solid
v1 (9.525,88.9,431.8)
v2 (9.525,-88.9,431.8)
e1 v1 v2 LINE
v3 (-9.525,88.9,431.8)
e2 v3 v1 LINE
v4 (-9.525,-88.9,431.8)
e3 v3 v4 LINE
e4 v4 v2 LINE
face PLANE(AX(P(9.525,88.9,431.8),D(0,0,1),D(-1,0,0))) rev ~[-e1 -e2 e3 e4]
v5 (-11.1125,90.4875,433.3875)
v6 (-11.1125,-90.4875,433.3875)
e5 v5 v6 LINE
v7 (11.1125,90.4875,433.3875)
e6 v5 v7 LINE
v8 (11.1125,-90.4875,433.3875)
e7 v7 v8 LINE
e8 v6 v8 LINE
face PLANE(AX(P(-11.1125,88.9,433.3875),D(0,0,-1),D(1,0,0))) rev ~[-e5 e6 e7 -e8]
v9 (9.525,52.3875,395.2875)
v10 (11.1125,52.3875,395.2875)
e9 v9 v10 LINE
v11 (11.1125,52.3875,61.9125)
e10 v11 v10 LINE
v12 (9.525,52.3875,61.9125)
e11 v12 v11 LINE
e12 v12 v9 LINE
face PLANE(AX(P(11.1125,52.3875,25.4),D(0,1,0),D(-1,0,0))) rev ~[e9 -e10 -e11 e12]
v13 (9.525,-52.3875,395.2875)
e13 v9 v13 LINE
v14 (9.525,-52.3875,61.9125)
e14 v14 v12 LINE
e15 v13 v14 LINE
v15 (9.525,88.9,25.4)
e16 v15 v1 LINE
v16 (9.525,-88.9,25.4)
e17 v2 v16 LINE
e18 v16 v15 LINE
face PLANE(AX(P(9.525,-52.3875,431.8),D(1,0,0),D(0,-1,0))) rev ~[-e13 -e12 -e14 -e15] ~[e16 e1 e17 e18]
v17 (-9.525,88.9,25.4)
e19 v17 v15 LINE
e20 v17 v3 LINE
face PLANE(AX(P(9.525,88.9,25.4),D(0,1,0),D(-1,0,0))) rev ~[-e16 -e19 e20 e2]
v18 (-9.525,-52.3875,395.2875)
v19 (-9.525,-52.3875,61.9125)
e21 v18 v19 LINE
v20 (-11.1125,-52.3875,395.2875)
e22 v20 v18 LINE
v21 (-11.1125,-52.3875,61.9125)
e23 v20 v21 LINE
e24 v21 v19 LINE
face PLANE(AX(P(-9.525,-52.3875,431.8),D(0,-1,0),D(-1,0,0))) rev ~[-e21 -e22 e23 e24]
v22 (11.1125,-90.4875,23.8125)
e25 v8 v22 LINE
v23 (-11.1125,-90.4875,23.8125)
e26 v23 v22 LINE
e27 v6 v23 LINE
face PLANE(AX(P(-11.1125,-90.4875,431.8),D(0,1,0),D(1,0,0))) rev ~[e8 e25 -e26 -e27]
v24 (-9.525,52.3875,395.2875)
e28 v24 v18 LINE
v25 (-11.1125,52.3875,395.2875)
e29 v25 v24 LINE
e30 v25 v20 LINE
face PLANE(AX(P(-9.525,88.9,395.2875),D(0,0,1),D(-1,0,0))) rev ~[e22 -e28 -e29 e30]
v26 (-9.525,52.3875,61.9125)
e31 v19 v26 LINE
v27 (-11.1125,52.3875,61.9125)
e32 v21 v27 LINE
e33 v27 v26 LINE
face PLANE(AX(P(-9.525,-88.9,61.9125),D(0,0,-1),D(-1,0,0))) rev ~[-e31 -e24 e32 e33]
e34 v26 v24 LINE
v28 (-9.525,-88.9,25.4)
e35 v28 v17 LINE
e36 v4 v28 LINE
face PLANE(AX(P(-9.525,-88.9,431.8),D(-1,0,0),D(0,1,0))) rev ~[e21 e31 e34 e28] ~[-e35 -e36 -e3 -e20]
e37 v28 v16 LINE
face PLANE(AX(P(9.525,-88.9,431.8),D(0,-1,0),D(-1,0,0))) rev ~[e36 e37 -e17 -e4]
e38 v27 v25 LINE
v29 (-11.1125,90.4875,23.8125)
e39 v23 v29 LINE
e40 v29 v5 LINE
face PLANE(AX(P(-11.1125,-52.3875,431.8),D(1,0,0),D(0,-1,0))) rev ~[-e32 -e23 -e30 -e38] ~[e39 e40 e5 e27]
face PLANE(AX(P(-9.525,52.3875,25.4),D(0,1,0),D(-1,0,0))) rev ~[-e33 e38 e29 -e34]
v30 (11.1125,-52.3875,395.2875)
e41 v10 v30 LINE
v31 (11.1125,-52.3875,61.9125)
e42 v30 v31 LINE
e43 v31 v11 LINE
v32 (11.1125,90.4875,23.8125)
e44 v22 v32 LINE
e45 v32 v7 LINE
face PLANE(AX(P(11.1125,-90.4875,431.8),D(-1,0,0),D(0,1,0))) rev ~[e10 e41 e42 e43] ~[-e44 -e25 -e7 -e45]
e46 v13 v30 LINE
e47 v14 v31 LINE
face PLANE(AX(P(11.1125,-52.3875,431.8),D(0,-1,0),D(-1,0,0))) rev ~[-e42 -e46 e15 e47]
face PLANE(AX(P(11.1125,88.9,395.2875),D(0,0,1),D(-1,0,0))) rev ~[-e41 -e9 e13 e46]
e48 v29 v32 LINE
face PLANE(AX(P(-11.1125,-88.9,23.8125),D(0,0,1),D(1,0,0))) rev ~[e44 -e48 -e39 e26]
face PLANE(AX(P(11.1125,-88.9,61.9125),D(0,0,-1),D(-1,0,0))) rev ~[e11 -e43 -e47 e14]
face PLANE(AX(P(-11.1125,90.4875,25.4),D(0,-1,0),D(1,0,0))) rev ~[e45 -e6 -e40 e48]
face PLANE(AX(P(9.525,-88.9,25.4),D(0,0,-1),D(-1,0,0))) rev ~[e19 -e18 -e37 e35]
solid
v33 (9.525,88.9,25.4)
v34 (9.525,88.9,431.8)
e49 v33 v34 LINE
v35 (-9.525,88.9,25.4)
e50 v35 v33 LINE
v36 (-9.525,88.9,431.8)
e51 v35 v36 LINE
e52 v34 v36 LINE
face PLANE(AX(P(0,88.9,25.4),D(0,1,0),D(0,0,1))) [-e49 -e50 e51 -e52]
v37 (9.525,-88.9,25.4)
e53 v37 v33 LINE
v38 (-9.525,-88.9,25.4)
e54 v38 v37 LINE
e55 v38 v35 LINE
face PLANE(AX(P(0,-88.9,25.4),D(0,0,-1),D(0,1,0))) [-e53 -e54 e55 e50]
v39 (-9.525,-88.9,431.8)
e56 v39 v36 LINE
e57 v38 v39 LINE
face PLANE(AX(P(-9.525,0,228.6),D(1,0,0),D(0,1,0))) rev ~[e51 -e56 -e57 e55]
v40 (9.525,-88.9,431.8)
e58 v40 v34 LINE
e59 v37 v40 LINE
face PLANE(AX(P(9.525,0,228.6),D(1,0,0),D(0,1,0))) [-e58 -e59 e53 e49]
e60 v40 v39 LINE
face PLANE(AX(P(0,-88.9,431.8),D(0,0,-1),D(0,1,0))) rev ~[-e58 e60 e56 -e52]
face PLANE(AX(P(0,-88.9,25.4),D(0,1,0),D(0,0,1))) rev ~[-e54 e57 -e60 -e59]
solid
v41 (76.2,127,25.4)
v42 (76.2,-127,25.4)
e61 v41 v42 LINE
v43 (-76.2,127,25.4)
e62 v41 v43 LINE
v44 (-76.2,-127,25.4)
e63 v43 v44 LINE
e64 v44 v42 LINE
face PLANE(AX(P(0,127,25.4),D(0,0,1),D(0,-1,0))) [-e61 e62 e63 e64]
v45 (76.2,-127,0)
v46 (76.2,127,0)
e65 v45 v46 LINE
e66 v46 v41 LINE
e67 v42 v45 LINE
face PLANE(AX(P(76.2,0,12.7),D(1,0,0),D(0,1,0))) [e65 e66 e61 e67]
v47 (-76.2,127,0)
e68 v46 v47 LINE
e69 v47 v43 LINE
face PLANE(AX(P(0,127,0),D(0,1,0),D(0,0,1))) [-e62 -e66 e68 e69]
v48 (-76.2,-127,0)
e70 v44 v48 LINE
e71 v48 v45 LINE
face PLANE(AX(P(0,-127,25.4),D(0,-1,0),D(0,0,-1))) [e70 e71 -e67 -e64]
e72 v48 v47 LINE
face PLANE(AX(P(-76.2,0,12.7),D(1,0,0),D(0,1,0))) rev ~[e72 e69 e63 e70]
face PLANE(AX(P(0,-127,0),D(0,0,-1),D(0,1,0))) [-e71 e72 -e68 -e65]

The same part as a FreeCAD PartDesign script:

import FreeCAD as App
import Part
import Sketcher

V = App.Vector
Q = App.Units.Quantity

doc = App.newDocument("Part")
body = doc.addObject("PartDesign::Body", "Body")

sketch1 = body.newObject("Sketcher::SketchObject", "Sketch")
sketch1.AttachmentSupport = (doc.getObject("YZ_Plane"), [""])
sketch1.MapMode = "FlatFace"
sketch1.addGeometry([
    Part.LineSegment(V(-89, 432, 0), V(-89, 25, 0)),
    Part.LineSegment(V(-89, 25, 0), V(89, 25, 0)),
    Part.LineSegment(V(89, 25, 0), V(89, 432, 0)),
    Part.LineSegment(V(89, 432, 0), V(-89, 432, 0)),
], False)
sketch1.addConstraint([
    Sketcher.Constraint("Coincident", 0, 2, 1, 1),
    Sketcher.Constraint("Coincident", 1, 2, 2, 1),
    Sketcher.Constraint("Coincident", 2, 2, 3, 1),
    Sketcher.Constraint("Coincident", 3, 2, 0, 1),
    Sketcher.Constraint("Vertical", 0),
    Sketcher.Constraint("Horizontal", 1),
    Sketcher.Constraint("Vertical", 2),
    Sketcher.Constraint("Horizontal", 3),
    Sketcher.Constraint("DistanceX", 1, 1, 1, 2, Q("7 in")),
    Sketcher.Constraint("DistanceY", 0, 2, 0, 1, Q("16 in")),
    Sketcher.Constraint("DistanceY", -1, 1, 0, 2, Q("1 in")),
    Sketcher.Constraint("DistanceX", 0, 2, -1, 1, Q("3.5 in")),
])
pad1 = body.newObject("PartDesign::Pad", "Pad")
pad1.Profile = sketch1
pad1.Length = Q("0.75 in")
pad1.Midplane = True
body2 = doc.addObject("PartDesign::Body", "Body001")

sketch2 = body2.newObject("Sketcher::SketchObject", "Sketch001")
sketch2.AttachmentSupport = (doc.getObject("YZ_Plane001"), [""])
sketch2.MapMode = "FlatFace"
sketch2.addGeometry([
    Part.LineSegment(V(127, 25, 0), V(-127, 25, 0)),
    Part.LineSegment(V(-127, 25, 0), V(-127, 0, 0)),
    Part.LineSegment(V(-127, 0, 0), V(127, 0, 0)),
    Part.LineSegment(V(127, 0, 0), V(127, 25, 0)),
], False)
sketch2.addConstraint([
    Sketcher.Constraint("Coincident", 0, 2, 1, 1),
    Sketcher.Constraint("Coincident", 1, 2, 2, 1),
    Sketcher.Constraint("Coincident", 2, 2, 3, 1),
    Sketcher.Constraint("Coincident", 3, 2, 0, 1),
    Sketcher.Constraint("Horizontal", 0),
    Sketcher.Constraint("Vertical", 1),
    Sketcher.Constraint("Horizontal", 2),
    Sketcher.Constraint("Vertical", 3),
    Sketcher.Constraint("Symmetric", 1, 2, 2, 2, -1, 1),
    Sketcher.Constraint("DistanceX", 0, 2, 0, 1, Q("10 in")),
    Sketcher.Constraint("DistanceY", 1, 2, 1, 1, Q("1 in")),
])
pad2 = body2.newObject("PartDesign::Pad", "Pad001")
pad2.Profile = sketch2
pad2.Length = Q("6 in")
pad2.Midplane = True
body3 = doc.addObject("PartDesign::Body", "Body002")

sketch3 = body3.newObject("Sketcher::SketchObject", "Sketch002")
sketch3.AttachmentSupport = (doc.getObject("XY_Plane002"), [""])
sketch3.MapMode = "FlatFace"
sketch3.AttachmentOffset = App.Placement(V(0, 0, 1 * 25.4), App.Rotation())
sketch3.addGeometry([
    Part.LineSegment(V(9.5, -88.9, 0), V(-9.5, -88.9, 0)),
    Part.LineSegment(V(-9.5, -88.9, 0), V(-9.5, -52.4, 0)),
    Part.LineSegment(V(-9.5, -52.4, 0), V(-11.1, -52.4, 0)),
    Part.LineSegment(V(-11.1, -52.4, 0), V(-11.1, -90.5, 0)),
    Part.LineSegment(V(-11.1, -90.5, 0), V(11.1, -90.5, 0)),
    Part.LineSegment(V(11.1, -90.5, 0), V(11.1, -52.4, 0)),
    Part.LineSegment(V(11.1, -52.4, 0), V(9.5, -52.4, 0)),
    Part.LineSegment(V(9.5, -52.4, 0), V(9.5, -88.9, 0)),
], False)
sketch3.addConstraint([
    Sketcher.Constraint("Coincident", 0, 2, 1, 1),
    Sketcher.Constraint("Coincident", 1, 2, 2, 1),
    Sketcher.Constraint("Coincident", 2, 2, 3, 1),
    Sketcher.Constraint("Coincident", 3, 2, 4, 1),
    Sketcher.Constraint("Coincident", 4, 2, 5, 1),
    Sketcher.Constraint("Coincident", 5, 2, 6, 1),
    Sketcher.Constraint("Coincident", 6, 2, 7, 1),
    Sketcher.Constraint("Coincident", 7, 2, 0, 1),
    Sketcher.Constraint("Horizontal", 0),
    Sketcher.Constraint("Vertical", 1),
    Sketcher.Constraint("Horizontal", 2),
    Sketcher.Constraint("Vertical", 3),
    Sketcher.Constraint("Horizontal", 4),
    Sketcher.Constraint("Vertical", 5),
    Sketcher.Constraint("Horizontal", 6),
    Sketcher.Constraint("Vertical", 7),
    Sketcher.Constraint("Symmetric", 2, 2, 5, 2, -2),
    Sketcher.Constraint("Equal", 2, 6),
    Sketcher.Constraint("DistanceY", 3, 2, 3, 1, Q("1.5 in")),
    Sketcher.Constraint("DistanceX", 0, 2, 0, 1, Q("0.75 in")),
    Sketcher.Constraint("DistanceY", 0, 2, -1, 1, Q("3.5 in")),
    Sketcher.Constraint("DistanceX", 2, 2, 2, 1, Q("0.0625 in")),
    Sketcher.Constraint("DistanceY", 1, 1, 1, 2, Q("1.4375 in")),
])

sketch4 = body3.newObject("Sketcher::SketchObject", "Sketch003")
sketch4.AttachmentSupport = (doc.getObject("YZ_Plane002"), [""])
sketch4.MapMode = "FlatFace"
sketch4.AttachmentOffset = App.Placement(V(0, 0, 0.375 * 25.4), App.Rotation())
sketch4.addGeometry([
    Part.LineSegment(V(-89, 432, 0), V(-89, 25, 0)),
    Part.LineSegment(V(-89, 25, 0), V(89, 25, 0)),
    Part.LineSegment(V(89, 25, 0), V(89, 432, 0)),
    Part.LineSegment(V(89, 432, 0), V(-89, 432, 0)),
], False)
sketch4.addConstraint([
    Sketcher.Constraint("Coincident", 0, 2, 1, 1),
    Sketcher.Constraint("Coincident", 1, 2, 2, 1),
    Sketcher.Constraint("Coincident", 2, 2, 3, 1),
    Sketcher.Constraint("Coincident", 3, 2, 0, 1),
    Sketcher.Constraint("Vertical", 0),
    Sketcher.Constraint("Horizontal", 1),
    Sketcher.Constraint("Vertical", 2),
    Sketcher.Constraint("Horizontal", 3),
    Sketcher.Constraint("DistanceX", 1, 1, 1, 2, Q("7 in")),
    Sketcher.Constraint("DistanceY", 0, 2, 0, 1, Q("16 in")),
    Sketcher.Constraint("DistanceY", -1, 1, 0, 2, Q("1 in")),
    Sketcher.Constraint("DistanceX", 0, 2, -1, 1, Q("3.5 in")),
])
doc.recompute()

additivepipe = body3.newObject("PartDesign::AdditivePipe", "AdditivePipe")
additivepipe.Profile = sketch3
additivepipe.Spine = (sketch4, ["Edge1", "Edge2", "Edge3", "Edge4"])
additivepipe.Transition = "Right corner"

doc.recompute()
